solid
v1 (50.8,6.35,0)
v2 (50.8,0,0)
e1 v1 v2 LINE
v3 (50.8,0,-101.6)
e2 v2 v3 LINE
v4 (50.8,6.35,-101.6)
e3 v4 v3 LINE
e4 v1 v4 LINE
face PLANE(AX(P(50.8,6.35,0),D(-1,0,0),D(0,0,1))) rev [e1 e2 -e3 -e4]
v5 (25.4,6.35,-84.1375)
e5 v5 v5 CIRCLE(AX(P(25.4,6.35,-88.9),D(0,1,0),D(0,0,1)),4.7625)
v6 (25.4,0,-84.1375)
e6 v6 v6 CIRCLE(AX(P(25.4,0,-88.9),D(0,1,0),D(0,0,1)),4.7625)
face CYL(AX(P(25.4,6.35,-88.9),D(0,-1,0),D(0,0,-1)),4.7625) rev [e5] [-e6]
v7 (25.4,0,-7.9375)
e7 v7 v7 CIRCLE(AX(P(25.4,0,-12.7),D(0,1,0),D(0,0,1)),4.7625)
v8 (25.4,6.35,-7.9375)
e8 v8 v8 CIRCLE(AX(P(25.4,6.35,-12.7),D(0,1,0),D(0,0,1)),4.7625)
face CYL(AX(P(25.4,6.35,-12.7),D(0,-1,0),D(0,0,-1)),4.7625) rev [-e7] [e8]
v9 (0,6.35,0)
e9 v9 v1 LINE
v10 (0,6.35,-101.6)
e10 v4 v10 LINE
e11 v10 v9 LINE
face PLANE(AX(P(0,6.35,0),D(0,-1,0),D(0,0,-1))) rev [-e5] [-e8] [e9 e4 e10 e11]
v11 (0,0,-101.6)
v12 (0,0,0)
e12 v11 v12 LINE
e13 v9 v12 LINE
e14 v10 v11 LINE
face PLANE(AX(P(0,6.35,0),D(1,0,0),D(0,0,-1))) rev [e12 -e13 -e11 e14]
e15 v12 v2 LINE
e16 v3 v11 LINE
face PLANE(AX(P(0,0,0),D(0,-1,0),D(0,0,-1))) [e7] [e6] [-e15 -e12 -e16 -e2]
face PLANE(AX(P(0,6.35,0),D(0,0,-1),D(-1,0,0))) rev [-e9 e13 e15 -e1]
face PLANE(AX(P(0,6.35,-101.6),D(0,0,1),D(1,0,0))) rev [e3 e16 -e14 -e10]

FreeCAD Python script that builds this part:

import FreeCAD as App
import Part
import Sketcher
from FreeCAD import Vector
Q = App.Units.Quantity

doc = App.newDocument("Part")
body = doc.addObject("PartDesign::Body", "Body")

# Sketch on XZ plane
sketch1 = body.newObject("Sketcher::SketchObject", "Sketch")
sketch1.AttachmentSupport = (doc.getObject("XZ_Plane"), [""])
sketch1.MapMode = "FlatFace"
sketch1.addGeometry([
    Part.LineSegment(Vector(0, -101.6, 0), Vector(0, 0, 0)),  # 0
    Part.LineSegment(Vector(0, 0, 0), Vector(50.8, 0, 0)),  # 1
    Part.LineSegment(Vector(50.8, 0, 0), Vector(50.8, -101.6, 0)),  # 2
    Part.LineSegment(Vector(50.8, -101.6, 0), Vector(0, -101.6, 0)),  # 3
    Part.Circle(Vector(25.4, -12.7, 0), Vector(0, 0, 1), 4.8),  # 4
    Part.Circle(Vector(25.4, -88.9, 0), Vector(0, 0, 1), 4.8),  # 5
], False)
sketch1.addConstraint([
    Sketcher.Constraint("Coincident", 0, 2, 1, 1),
    Sketcher.Constraint("Coincident", 1, 2, 2, 1),
    Sketcher.Constraint("Coincident", 2, 2, 3, 1),
    Sketcher.Constraint("Coincident", 3, 2, 0, 1),
    Sketcher.Constraint("Vertical", 0),
    Sketcher.Constraint("Horizontal", 1),
    Sketcher.Constraint("Vertical", 2),
    Sketcher.Constraint("Horizontal", 3),
    Sketcher.Constraint("Coincident", 0, 2, -1, 1),
    Sketcher.Constraint("Equal", 4, 5),
    Sketcher.Constraint("Vertical", 4, 3, 5, 3),
    Sketcher.Constraint("DistanceX", 1, 1, 1, 2, Q("2 in")),
    Sketcher.Constraint("DistanceY", 0, 1, 0, 2, Q("4 in")),
    Sketcher.Constraint("Diameter", 4, Q("0.375 in")),
    Sketcher.Constraint("DistanceX", -1, 1, 4, 3, Q("1 in")),
    Sketcher.Constraint("DistanceY", 5, 3, 4, 3, Q("3 in")),
    Sketcher.Constraint("DistanceY", 4, 3, -1, 1, Q("0.5 in")),
])
pad1 = body.newObject("PartDesign::Pad", "Pad")
pad1.Profile = sketch1
pad1.Length = Q("0.25 in")
pad1.Reversed = True

doc.recompute()
